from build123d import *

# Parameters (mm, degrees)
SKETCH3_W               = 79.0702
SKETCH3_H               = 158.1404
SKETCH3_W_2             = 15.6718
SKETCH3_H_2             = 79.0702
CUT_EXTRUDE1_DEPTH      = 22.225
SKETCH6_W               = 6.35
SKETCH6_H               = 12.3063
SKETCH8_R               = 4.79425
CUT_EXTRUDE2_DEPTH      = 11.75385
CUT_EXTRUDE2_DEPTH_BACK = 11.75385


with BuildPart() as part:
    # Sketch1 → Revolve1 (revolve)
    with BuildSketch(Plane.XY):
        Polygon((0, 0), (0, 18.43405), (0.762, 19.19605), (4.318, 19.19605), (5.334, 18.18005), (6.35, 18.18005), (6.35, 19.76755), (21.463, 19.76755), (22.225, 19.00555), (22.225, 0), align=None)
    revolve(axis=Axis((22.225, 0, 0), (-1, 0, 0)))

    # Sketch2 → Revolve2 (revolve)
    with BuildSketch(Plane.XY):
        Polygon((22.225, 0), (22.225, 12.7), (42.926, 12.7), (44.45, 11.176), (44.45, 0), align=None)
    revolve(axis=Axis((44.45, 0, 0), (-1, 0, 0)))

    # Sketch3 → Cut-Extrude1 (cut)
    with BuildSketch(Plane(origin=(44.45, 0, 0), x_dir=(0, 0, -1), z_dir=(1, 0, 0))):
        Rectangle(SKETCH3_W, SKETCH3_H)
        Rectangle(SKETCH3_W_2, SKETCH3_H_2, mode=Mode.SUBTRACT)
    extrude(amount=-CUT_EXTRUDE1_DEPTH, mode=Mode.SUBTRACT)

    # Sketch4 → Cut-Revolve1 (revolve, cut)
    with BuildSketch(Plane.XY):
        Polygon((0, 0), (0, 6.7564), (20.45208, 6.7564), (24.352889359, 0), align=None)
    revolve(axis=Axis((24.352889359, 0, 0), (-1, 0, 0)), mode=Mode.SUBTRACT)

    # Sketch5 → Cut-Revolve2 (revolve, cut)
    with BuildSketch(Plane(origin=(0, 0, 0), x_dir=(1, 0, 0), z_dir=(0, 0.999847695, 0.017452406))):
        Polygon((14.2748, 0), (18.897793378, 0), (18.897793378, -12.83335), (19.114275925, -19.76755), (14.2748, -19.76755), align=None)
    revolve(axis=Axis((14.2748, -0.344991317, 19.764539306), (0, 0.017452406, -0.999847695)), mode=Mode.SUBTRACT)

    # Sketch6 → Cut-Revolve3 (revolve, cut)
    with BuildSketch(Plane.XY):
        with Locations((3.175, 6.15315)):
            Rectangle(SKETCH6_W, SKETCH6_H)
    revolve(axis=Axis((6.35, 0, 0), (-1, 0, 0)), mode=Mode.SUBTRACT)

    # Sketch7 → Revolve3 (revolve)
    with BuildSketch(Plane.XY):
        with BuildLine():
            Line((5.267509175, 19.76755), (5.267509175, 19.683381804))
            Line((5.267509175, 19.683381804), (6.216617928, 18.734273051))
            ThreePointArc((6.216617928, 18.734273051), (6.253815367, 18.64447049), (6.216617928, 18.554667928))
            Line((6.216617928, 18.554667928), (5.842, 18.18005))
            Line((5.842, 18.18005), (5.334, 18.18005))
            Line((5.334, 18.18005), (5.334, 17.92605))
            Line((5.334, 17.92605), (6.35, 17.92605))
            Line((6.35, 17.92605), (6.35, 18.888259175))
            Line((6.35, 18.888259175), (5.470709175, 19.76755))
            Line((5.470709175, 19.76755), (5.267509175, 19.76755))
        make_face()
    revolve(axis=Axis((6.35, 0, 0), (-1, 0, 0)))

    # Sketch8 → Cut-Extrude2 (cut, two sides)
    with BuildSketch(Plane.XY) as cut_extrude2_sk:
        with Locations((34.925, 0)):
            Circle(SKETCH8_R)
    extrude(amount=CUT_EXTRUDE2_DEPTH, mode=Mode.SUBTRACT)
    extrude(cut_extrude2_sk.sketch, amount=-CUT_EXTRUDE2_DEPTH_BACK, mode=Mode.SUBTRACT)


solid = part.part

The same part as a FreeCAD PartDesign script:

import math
import FreeCAD as App
import Part
import Sketcher
from FreeCAD import Vector
Q = App.Units.Quantity

doc = App.newDocument("Part")
body = doc.addObject("PartDesign::Body", "Body")

# Sketch on XY plane
sketch1 = body.newObject("Sketcher::SketchObject", "Sketch")
sketch1.AttachmentSupport = (doc.getObject("XY_Plane"), [""])
sketch1.MapMode = "FlatFace"
sketch1.addGeometry(Part.LineSegment(Vector(0, 18.43405, 0), Vector(0, 0, 0)), False)
sketch1.addGeometry(Part.LineSegment(Vector(0, 0, 0), Vector(22.225, 0, 0)), False)
sketch1.addGeometry(Part.LineSegment(Vector(22.225, 0, 0), Vector(22.225, 19.00555, 0)), False)
sketch1.addGeometry(Part.LineSegment(Vector(22.225, 19.00555, 0), Vector(21.463, 19.76755, 0)), False)
sketch1.addGeometry(Part.LineSegment(Vector(21.463, 19.76755, 0), Vector(6.35, 19.76755, 0)), False)
sketch1.addGeometry(Part.LineSegment(Vector(6.35, 19.76755, 0), Vector(6.35, 18.18005, 0)), False)
sketch1.addGeometry(Part.LineSegment(Vector(6.35, 18.18005, 0), Vector(5.334, 18.18005, 0)), False)
sketch1.addGeometry(Part.LineSegment(Vector(5.334, 18.18005, 0), Vector(4.318, 19.19605, 0)), False)
sketch1.addGeometry(Part.LineSegment(Vector(4.318, 19.19605, 0), Vector(0.762, 19.19605, 0)), False)
sketch1.addGeometry(Part.LineSegment(Vector(0.762, 19.19605, 0), Vector(0, 18.43405, 0)), False)
sketch1.addConstraint(Sketcher.Constraint("Coincident", 0, 2, 1, 1))
sketch1.addConstraint(Sketcher.Constraint("Coincident", 1, 2, 2, 1))
sketch1.addConstraint(Sketcher.Constraint("Coincident", 2, 2, 3, 1))
sketch1.addConstraint(Sketcher.Constraint("Coincident", 3, 2, 4, 1))
sketch1.addConstraint(Sketcher.Constraint("Coincident", 4, 2, 5, 1))
sketch1.addConstraint(Sketcher.Constraint("Coincident", 5, 2, 6, 1))
sketch1.addConstraint(Sketcher.Constraint("Coincident", 6, 2, 7, 1))
sketch1.addConstraint(Sketcher.Constraint("Coincident", 7, 2, 8, 1))
sketch1.addConstraint(Sketcher.Constraint("Coincident", 8, 2, 9, 1))
sketch1.addConstraint(Sketcher.Constraint("Coincident", 9, 2, 0, 1))
sketch1.addConstraint(Sketcher.Constraint("Vertical", 0))
sketch1.addConstraint(Sketcher.Constraint("Horizontal", 1))
sketch1.addConstraint(Sketcher.Constraint("Vertical", 2))
sketch1.addConstraint(Sketcher.Constraint("Horizontal", 4))
sketch1.addConstraint(Sketcher.Constraint("Vertical", 5))
sketch1.addConstraint(Sketcher.Constraint("Horizontal", 6))
sketch1.addConstraint(Sketcher.Constraint("Horizontal", 8))
sketch1.addConstraint(Sketcher.Constraint("Coincident", 0, 2, -1, 1))
sketch1.addConstraint(Sketcher.Constraint("Parallel", 3, 7))
sketch1.addConstraint(Sketcher.Constraint("Perpendicular", 7, 9))
sketch1.addConstraint(Sketcher.Constraint("Equal", 3, 9))
sketch1.addConstraint(Sketcher.Constraint("Angle", 3, Q("135 deg")))
sketch1.addConstraint(Sketcher.Constraint("DistanceX", 6, 2, 6, 1, Q("0.04 in")))
sketch1.addConstraint(Sketcher.Constraint("DistanceX", 8, 2, 8, 1, Q("0.14 in")))
sketch1.addConstraint(Sketcher.Constraint("DistanceX", 1, 1, 1, 2, Q("0.875 in")))
sketch1.addConstraint(Sketcher.Constraint("DistanceX", 4, 2, 4, 1, Q("0.595 in")))
sketch1.addConstraint(Sketcher.Constraint("DistanceY", 5, 2, 5, 1, Q("0.0625 in")))
sketch1.addConstraint(Sketcher.Constraint("DistanceX", -1, 1, 4, 2, Q("0.25 in")))
sketch1.addConstraint(Sketcher.Constraint("DistanceY", 0, 2, 0, 1, 18.43405))
revolution = body.newObject("PartDesign::Revolution", "Revolution")
revolution.Profile = sketch1
revolution.ReferenceAxis = (sketch1, ["H_Axis"])
revolution.Angle = 360

# Sketch on XY plane
sketch2 = body.newObject("Sketcher::SketchObject", "Sketch001")
sketch2.AttachmentSupport = (doc.getObject("XY_Plane"), [""])
sketch2.MapMode = "FlatFace"
sketch2.addGeometry(Part.LineSegment(Vector(22.225, 12.7, 0), Vector(22.225, 0, 0)), False)
sketch2.addGeometry(Part.LineSegment(Vector(22.225, 0, 0), Vector(44.45, 0, 0)), False)
sketch2.addGeometry(Part.LineSegment(Vector(44.45, 0, 0), Vector(44.45, 11.176, 0)), False)
sketch2.addGeometry(Part.LineSegment(Vector(44.45, 11.176, 0), Vector(42.926, 12.7, 0)), False)
sketch2.addGeometry(Part.LineSegment(Vector(42.926, 12.7, 0), Vector(22.225, 12.7, 0)), False)
sketch2.addConstraint(Sketcher.Constraint("Coincident", 0, 2, 1, 1))
sketch2.addConstraint(Sketcher.Constraint("Coincident", 1, 2, 2, 1))
sketch2.addConstraint(Sketcher.Constraint("Coincident", 2, 2, 3, 1))
sketch2.addConstraint(Sketcher.Constraint("Coincident", 3, 2, 4, 1))
sketch2.addConstraint(Sketcher.Constraint("Coincident", 4, 2, 0, 1))
sketch2.addConstraint(Sketcher.Constraint("Vertical", 0))
sketch2.addConstraint(Sketcher.Constraint("Horizontal", 1))
sketch2.addConstraint(Sketcher.Constraint("Vertical", 2))
sketch2.addConstraint(Sketcher.Constraint("Horizontal", 4))
sketch2.addConstraint(Sketcher.Constraint("PointOnObject", 0, 2, -1))
sketch2.addConstraint(Sketcher.Constraint("DistanceY", 0, 2, 0, 1, Q("0.5 in")))
sketch2.addConstraint(Sketcher.Constraint("Angle", 3, Q("135 deg")))
sketch2.addConstraint(Sketcher.Constraint("DistanceY", 2, 1, 2, 2, Q("0.44 in")))
sketch2.addConstraint(Sketcher.Constraint("DistanceX", 1, 1, 1, 2, Q("0.875 in")))
sketch2.addConstraint(Sketcher.Constraint("DistanceX", -1, 1, 1, 2, Q("1.75 in")))
revolution2 = body.newObject("PartDesign::Revolution", "Revolution001")
revolution2.Profile = sketch2
revolution2.ReferenceAxis = (sketch2, ["H_Axis"])
revolution2.Angle = 360

# Sketch on YZ plane
sketch3 = body.newObject("Sketcher::SketchObject", "Sketch002")
sketch3.AttachmentSupport = (doc.getObject("YZ_Plane"), [""])
sketch3.MapMode = "FlatFace"
sketch3.AttachmentOffset = App.Placement(Vector(0, 0, 1.75 * 25.4), App.Rotation())
sketch3.addGeometry(Part.LineSegment(Vector(79.0702, 39.5351, 0), Vector(-79.0702, 39.5351, 0)), False)
sketch3.addGeometry(Part.LineSegment(Vector(-79.0702, 39.5351, 0), Vector(-79.0702, -39.5351, 0)), False)
sketch3.addGeometry(Part.LineSegment(Vector(-79.0702, -39.5351, 0), Vector(79.0702, -39.5351, 0)), False)
sketch3.addGeometry(Part.LineSegment(Vector(79.0702, -39.5351, 0), Vector(79.0702, 39.5351, 0)), False)
sketch3.addGeometry(Part.LineSegment(Vector(-39.5351, -7.8359, 0), Vector(-39.5351, 7.8359, 0)), False)
sketch3.addGeometry(Part.LineSegment(Vector(-39.5351, 7.8359, 0), Vector(39.5351, 7.8359, 0)), False)
sketch3.addGeometry(Part.LineSegment(Vector(39.5351, 7.8359, 0), Vector(39.5351, -7.8359, 0)), False)
sketch3.addGeometry(Part.LineSegment(Vector(39.5351, -7.8359, 0), Vector(-39.5351, -7.8359, 0)), False)
sketch3.addConstraint(Sketcher.Constraint("Coincident", 0, 2, 1, 1))
sketch3.addConstraint(Sketcher.Constraint("Coincident", 1, 2, 2, 1))
sketch3.addConstraint(Sketcher.Constraint("Coincident", 2, 2, 3, 1))
sketch3.addConstraint(Sketcher.Constraint("Coincident", 3, 2, 0, 1))
sketch3.addConstraint(Sketcher.Constraint("Coincident", 4, 2, 5, 1))
sketch3.addConstraint(Sketcher.Constraint("Coincident", 5, 2, 6, 1))
sketch3.addConstraint(Sketcher.Constraint("Coincident", 6, 2, 7, 1))
sketch3.addConstraint(Sketcher.Constraint("Coincident", 7, 2, 4, 1))
sketch3.addConstraint(Sketcher.Constraint("Horizontal", 0))
sketch3.addConstraint(Sketcher.Constraint("Vertical", 1))
sketch3.addConstraint(Sketcher.Constraint("Horizontal", 2))
sketch3.addConstraint(Sketcher.Constraint("Vertical", 3))
sketch3.addConstraint(Sketcher.Constraint("Vertical", 4))
sketch3.addConstraint(Sketcher.Constraint("Horizontal", 5))
sketch3.addConstraint(Sketcher.Constraint("Vertical", 6))
sketch3.addConstraint(Sketcher.Constraint("Horizontal", 7))
sketch3.addConstraint(Sketcher.Constraint("Symmetric", 0, 2, 2, 2, -1, 1))
sketch3.addConstraint(Sketcher.Constraint("Symmetric", 4, 2, 6, 2, -1, 1))
sketch3.addConstraint(Sketcher.Constraint("Equal", 7, 1))
sketch3.addConstraint(Sketcher.Constraint("DistanceX", 0, 2, 0, 1, Q("6.226 in")))
sketch3.addConstraint(Sketcher.Constraint("DistanceX", 5, 1, 5, 2, Q("3.113 in")))
sketch3.addConstraint(Sketcher.Constraint("DistanceY", 4, 1, 4, 2, Q("0.617 in")))
pocket1 = body.newObject("PartDesign::Pocket", "Pocket")
pocket1.Profile = sketch3
pocket1.Length = Q("0.875 in")

# Sketch on XY plane
sketch4 = body.newObject("Sketcher::SketchObject", "Sketch003")
sketch4.AttachmentSupport = (doc.getObject("XY_Plane"), [""])
sketch4.MapMode = "FlatFace"
sketch4.addGeometry(Part.LineSegment(Vector(0, 6.7564, 0), Vector(0, 0, 0)), False)
sketch4.addGeometry(Part.LineSegment(Vector(0, 0, 0), Vector(24.352889, 0, 0)), False)
sketch4.addGeometry(Part.LineSegment(Vector(24.352889, 0, 0), Vector(20.45208, 6.7564, 0)), False)
sketch4.addGeometry(Part.LineSegment(Vector(20.45208, 6.7564, 0), Vector(0, 6.7564, 0)), False)
sketch4.addConstraint(Sketcher.Constraint("Coincident", 0, 2, 1, 1))
sketch4.addConstraint(Sketcher.Constraint("Coincident", 1, 2, 2, 1))
sketch4.addConstraint(Sketcher.Constraint("Coincident", 2, 2, 3, 1))
sketch4.addConstraint(Sketcher.Constraint("Coincident", 3, 2, 0, 1))
sketch4.addConstraint(Sketcher.Constraint("Vertical", 0))
sketch4.addConstraint(Sketcher.Constraint("Horizontal", 1))
sketch4.addConstraint(Sketcher.Constraint("Horizontal", 3))
sketch4.addConstraint(Sketcher.Constraint("Coincident", 0, 2, -1, 1))
sketch4.addConstraint(Sketcher.Constraint("Angle", 2, Q("120 deg")))
sketch4.addConstraint(Sketcher.Constraint("DistanceY", 0, 2, 0, 1, Q("0.266 in")))
sketch4.addConstraint(Sketcher.Constraint("DistanceX", 3, 2, 3, 1, Q("0.8052 in")))
groove = body.newObject("PartDesign::Groove", "Groove")
groove.Profile = sketch4
groove.ReferenceAxis = (sketch4, ["H_Axis"])
groove.Angle = 360

# Sketch on an angled plane
sketch5 = body.newObject("Sketcher::SketchObject", "Sketch004")
sketch5.Placement = App.Placement(Vector(0, 0, 0), App.Rotation(Vector(1, 0, 0), Vector(0, 0.017452406, -0.999847695), Vector(0, 0.999847695, 0.017452406), "ZXY"))
sketch5.addGeometry(Part.LineSegment(Vector(18.897793, 0, 0), Vector(14.2748, 0, 0)), False)
sketch5.addGeometry(Part.LineSegment(Vector(14.2748, 0, 0), Vector(14.2748, -19.76755, 0)), False)
sketch5.addGeometry(Part.LineSegment(Vector(14.2748, -19.76755, 0), Vector(19.114276, -19.76755, 0)), False)
sketch5.addGeometry(Part.LineSegment(Vector(19.114276, -19.76755, 0), Vector(18.897793, -12.83335, 0)), False)
sketch5.addGeometry(Part.LineSegment(Vector(18.897793, -12.83335, 0), Vector(18.897793, 0, 0)), False)
sketch5.addGeometry(Part.LineSegment(Vector(14.2748, -19.76755, 0), Vector(14.2748, 0, 0)), True)  # axis
sketch5.addConstraint(Sketcher.Constraint("Coincident", 0, 2, 1, 1))
sketch5.addConstraint(Sketcher.Constraint("Coincident", 1, 2, 2, 1))
sketch5.addConstraint(Sketcher.Constraint("Coincident", 2, 2, 3, 1))
sketch5.addConstraint(Sketcher.Constraint("Coincident", 3, 2, 4, 1))
sketch5.addConstraint(Sketcher.Constraint("Coincident", 4, 2, 0, 1))
sketch5.addConstraint(Sketcher.Constraint("Horizontal", 0))
sketch5.addConstraint(Sketcher.Constraint("Vertical", 1))
sketch5.addConstraint(Sketcher.Constraint("Horizontal", 2))
sketch5.addConstraint(Sketcher.Constraint("Vertical", 4))
sketch5.addConstraint(Sketcher.Constraint("Vertical", 5))
sketch5.addConstraint(Sketcher.Constraint("Coincident", 5, 1, 1, 2))
sketch5.addConstraint(Sketcher.Constraint("PointOnObject", 0, 2, -1))
sketch5.addConstraint(Sketcher.Constraint("PointOnObject", 5, 2, -1))
sketch5.addConstraint(Sketcher.Constraint("DistanceX", -1, 1, 0, 2, Q("0.562 in")))
sketch5.addConstraint(Sketcher.Constraint("DistanceY", 2, 2, 3, 2, Q("0.273 in")))
sketch5.addConstraint(Sketcher.Constraint("DistanceY", 1, 2, 1, 1, 19.76755))
sketch5.addConstraint(Sketcher.Constraint("Distance", 3, 6.937578))
sketch5.addConstraint(Sketcher.Constraint("DistanceX", 0, 2, 0, 1, 4.622993))
groove2 = body.newObject("PartDesign::Groove", "Groove001")
groove2.Profile = sketch5
groove2.ReferenceAxis = (sketch5, ["Axis0"])
groove2.Angle = 360

# Sketch on XY plane
sketch6 = body.newObject("Sketcher::SketchObject", "Sketch005")
sketch6.AttachmentSupport = (doc.getObject("XY_Plane"), [""])
sketch6.MapMode = "FlatFace"
sketch6.addGeometry(Part.LineSegment(Vector(0, 12.3063, 0), Vector(0, 0, 0)), False)
sketch6.addGeometry(Part.LineSegment(Vector(0, 0, 0), Vector(6.35, 0, 0)), False)
sketch6.addGeometry(Part.LineSegment(Vector(6.35, 0, 0), Vector(6.35, 12.3063, 0)), False)
sketch6.addGeometry(Part.LineSegment(Vector(6.35, 12.3063, 0), Vector(0, 12.3063, 0)), False)
sketch6.addConstraint(Sketcher.Constraint("Coincident", 0, 2, 1, 1))
sketch6.addConstraint(Sketcher.Constraint("Coincident", 1, 2, 2, 1))
sketch6.addConstraint(Sketcher.Constraint("Coincident", 2, 2, 3, 1))
sketch6.addConstraint(Sketcher.Constraint("Coincident", 3, 2, 0, 1))
sketch6.addConstraint(Sketcher.Constraint("Vertical", 0))
sketch6.addConstraint(Sketcher.Constraint("Horizontal", 1))
sketch6.addConstraint(Sketcher.Constraint("Vertical", 2))
sketch6.addConstraint(Sketcher.Constraint("Horizontal", 3))
sketch6.addConstraint(Sketcher.Constraint("Coincident", 0, 2, -1, 1))
sketch6.addConstraint(Sketcher.Constraint("DistanceX", 1, 1, 1, 2, Q("0.25 in")))
sketch6.addConstraint(Sketcher.Constraint("DistanceY", 0, 2, 0, 1, Q("0.4845 in")))
groove3 = body.newObject("PartDesign::Groove", "Groove002")
groove3.Profile = sketch6
groove3.ReferenceAxis = (sketch6, ["H_Axis"])
groove3.Angle = 360

# Sketch on XY plane
sketch7 = body.newObject("Sketcher::SketchObject", "Sketch006")
sketch7.AttachmentSupport = (doc.getObject("XY_Plane"), [""])
sketch7.MapMode = "FlatFace"
sketch7.addGeometry(Part.LineSegment(Vector(5.267509, 19.76755, 0), Vector(5.267509, 19.683382, 0)), False)
sketch7.addGeometry(Part.LineSegment(Vector(5.267509, 19.683382, 0), Vector(6.216618, 18.734273, 0)), False)
sketch7.addGeometry(Part.ArcOfCircle(Part.Circle(Vector(6.126815, 18.64447, 0), Vector(0, 0, 1), 0.127), math.radians(-45), math.radians(45)), False)
sketch7.addGeometry(Part.LineSegment(Vector(6.216618, 18.554668, 0), Vector(5.842, 18.18005, 0)), False)
sketch7.addGeometry(Part.LineSegment(Vector(5.842, 18.18005, 0), Vector(5.334, 18.18005, 0)), False)
sketch7.addGeometry(Part.LineSegment(Vector(5.334, 18.18005, 0), Vector(5.334, 17.92605, 0)), False)
sketch7.addGeometry(Part.LineSegment(Vector(5.334, 17.92605, 0), Vector(6.35, 17.92605, 0)), False)
sketch7.addGeometry(Part.LineSegment(Vector(6.35, 17.92605, 0), Vector(6.35, 18.888259, 0)), False)
sketch7.addGeometry(Part.LineSegment(Vector(6.35, 18.888259, 0), Vector(5.470709, 19.76755, 0)), False)
sketch7.addGeometry(Part.LineSegment(Vector(5.470709, 19.76755, 0), Vector(5.267509, 19.76755, 0)), False)
sketch7.addConstraint(Sketcher.Constraint("Coincident", 0, 2, 1, 1))
sketch7.addConstraint(Sketcher.Constraint("Tangent", 1, 2, 2, 2))
sketch7.addConstraint(Sketcher.Constraint("Tangent", 2, 1, 3, 1))
sketch7.addConstraint(Sketcher.Constraint("Coincident", 3, 2, 4, 1))
sketch7.addConstraint(Sketcher.Constraint("Coincident", 4, 2, 5, 1))
sketch7.addConstraint(Sketcher.Constraint("Coincident", 5, 2, 6, 1))
sketch7.addConstraint(Sketcher.Constraint("Coincident", 6, 2, 7, 1))
sketch7.addConstraint(Sketcher.Constraint("Coincident", 7, 2, 8, 1))
sketch7.addConstraint(Sketcher.Constraint("Coincident", 8, 2, 9, 1))
sketch7.addConstraint(Sketcher.Constraint("Coincident", 9, 2, 0, 1))
sketch7.addConstraint(Sketcher.Constraint("Vertical", 0))
sketch7.addConstraint(Sketcher.Constraint("Horizontal", 4))
sketch7.addConstraint(Sketcher.Constraint("Vertical", 5))
sketch7.addConstraint(Sketcher.Constraint("Horizontal", 6))
sketch7.addConstraint(Sketcher.Constraint("Vertical", 7))
sketch7.addConstraint(Sketcher.Constraint("Horizontal", 9))
sketch7.addConstraint(Sketcher.Constraint("Perpendicular", 1, 3))
sketch7.addConstraint(Sketcher.Constraint("Perpendicular", 3, 8))
sketch7.addConstraint(Sketcher.Constraint("Vertical", 1, 2, 2, 1))
sketch7.addConstraint(Sketcher.Constraint("Radius", 2, Q("0.005 in")))
sketch7.addConstraint(Sketcher.Constraint("DistanceX", 4, 2, 4, 1, Q("0.02 in")))
sketch7.addConstraint(Sketcher.Constraint("DistanceX", 6, 1, 6, 2, Q("0.04 in")))
sketch7.addConstraint(Sketcher.Constraint("DistanceY", 5, 2, 5, 1, Q("0.01 in")))
sketch7.addConstraint(Sketcher.Constraint("DistanceX", 9, 2, 9, 1, Q("0.008 in")))
sketch7.addConstraint(Sketcher.Constraint("DistanceX", -1, 1, 3, 2, Q("0.23 in")))
sketch7.addConstraint(Sketcher.Constraint("DistanceY", 0, 2, 0, 1, 0.084168))
sketch7.addConstraint(Sketcher.Constraint("DistanceY", 7, 1, 7, 2, 0.962209))
sketch7.addConstraint(Sketcher.Constraint("DistanceY", -1, 1, 2, 3, 18.64447))
sketch7.addConstraint(Sketcher.Constraint("DistanceX", -1, 1, 0, 2, 5.267509))
revolution3 = body.newObject("PartDesign::Revolution", "Revolution002")
revolution3.Profile = sketch7
revolution3.ReferenceAxis = (sketch7, ["H_Axis"])
revolution3.Angle = 360

# Sketch on XY plane
sketch8 = body.newObject("Sketcher::SketchObject", "Sketch007")
sketch8.AttachmentSupport = (doc.getObject("XY_Plane"), [""])
sketch8.MapMode = "FlatFace"
sketch8.addGeometry(Part.Circle(Vector(34.925, 0, 0), Vector(0, 0, 1), 4.79425), False)
sketch8.addConstraint(Sketcher.Constraint("PointOnObject", 0, 3, -1))
sketch8.addConstraint(Sketcher.Constraint("Diameter", 0, Q("0.3775 in")))
sketch8.addConstraint(Sketcher.Constraint("DistanceX", -1, 1, 0, 3, Q("1.375 in")))
pocket2 = body.newObject("PartDesign::Pocket", "Pocket001")
pocket2.Profile = sketch8
pocket2.Type = "ThroughAll"
pocket2.Midplane = True

doc.recompute()
